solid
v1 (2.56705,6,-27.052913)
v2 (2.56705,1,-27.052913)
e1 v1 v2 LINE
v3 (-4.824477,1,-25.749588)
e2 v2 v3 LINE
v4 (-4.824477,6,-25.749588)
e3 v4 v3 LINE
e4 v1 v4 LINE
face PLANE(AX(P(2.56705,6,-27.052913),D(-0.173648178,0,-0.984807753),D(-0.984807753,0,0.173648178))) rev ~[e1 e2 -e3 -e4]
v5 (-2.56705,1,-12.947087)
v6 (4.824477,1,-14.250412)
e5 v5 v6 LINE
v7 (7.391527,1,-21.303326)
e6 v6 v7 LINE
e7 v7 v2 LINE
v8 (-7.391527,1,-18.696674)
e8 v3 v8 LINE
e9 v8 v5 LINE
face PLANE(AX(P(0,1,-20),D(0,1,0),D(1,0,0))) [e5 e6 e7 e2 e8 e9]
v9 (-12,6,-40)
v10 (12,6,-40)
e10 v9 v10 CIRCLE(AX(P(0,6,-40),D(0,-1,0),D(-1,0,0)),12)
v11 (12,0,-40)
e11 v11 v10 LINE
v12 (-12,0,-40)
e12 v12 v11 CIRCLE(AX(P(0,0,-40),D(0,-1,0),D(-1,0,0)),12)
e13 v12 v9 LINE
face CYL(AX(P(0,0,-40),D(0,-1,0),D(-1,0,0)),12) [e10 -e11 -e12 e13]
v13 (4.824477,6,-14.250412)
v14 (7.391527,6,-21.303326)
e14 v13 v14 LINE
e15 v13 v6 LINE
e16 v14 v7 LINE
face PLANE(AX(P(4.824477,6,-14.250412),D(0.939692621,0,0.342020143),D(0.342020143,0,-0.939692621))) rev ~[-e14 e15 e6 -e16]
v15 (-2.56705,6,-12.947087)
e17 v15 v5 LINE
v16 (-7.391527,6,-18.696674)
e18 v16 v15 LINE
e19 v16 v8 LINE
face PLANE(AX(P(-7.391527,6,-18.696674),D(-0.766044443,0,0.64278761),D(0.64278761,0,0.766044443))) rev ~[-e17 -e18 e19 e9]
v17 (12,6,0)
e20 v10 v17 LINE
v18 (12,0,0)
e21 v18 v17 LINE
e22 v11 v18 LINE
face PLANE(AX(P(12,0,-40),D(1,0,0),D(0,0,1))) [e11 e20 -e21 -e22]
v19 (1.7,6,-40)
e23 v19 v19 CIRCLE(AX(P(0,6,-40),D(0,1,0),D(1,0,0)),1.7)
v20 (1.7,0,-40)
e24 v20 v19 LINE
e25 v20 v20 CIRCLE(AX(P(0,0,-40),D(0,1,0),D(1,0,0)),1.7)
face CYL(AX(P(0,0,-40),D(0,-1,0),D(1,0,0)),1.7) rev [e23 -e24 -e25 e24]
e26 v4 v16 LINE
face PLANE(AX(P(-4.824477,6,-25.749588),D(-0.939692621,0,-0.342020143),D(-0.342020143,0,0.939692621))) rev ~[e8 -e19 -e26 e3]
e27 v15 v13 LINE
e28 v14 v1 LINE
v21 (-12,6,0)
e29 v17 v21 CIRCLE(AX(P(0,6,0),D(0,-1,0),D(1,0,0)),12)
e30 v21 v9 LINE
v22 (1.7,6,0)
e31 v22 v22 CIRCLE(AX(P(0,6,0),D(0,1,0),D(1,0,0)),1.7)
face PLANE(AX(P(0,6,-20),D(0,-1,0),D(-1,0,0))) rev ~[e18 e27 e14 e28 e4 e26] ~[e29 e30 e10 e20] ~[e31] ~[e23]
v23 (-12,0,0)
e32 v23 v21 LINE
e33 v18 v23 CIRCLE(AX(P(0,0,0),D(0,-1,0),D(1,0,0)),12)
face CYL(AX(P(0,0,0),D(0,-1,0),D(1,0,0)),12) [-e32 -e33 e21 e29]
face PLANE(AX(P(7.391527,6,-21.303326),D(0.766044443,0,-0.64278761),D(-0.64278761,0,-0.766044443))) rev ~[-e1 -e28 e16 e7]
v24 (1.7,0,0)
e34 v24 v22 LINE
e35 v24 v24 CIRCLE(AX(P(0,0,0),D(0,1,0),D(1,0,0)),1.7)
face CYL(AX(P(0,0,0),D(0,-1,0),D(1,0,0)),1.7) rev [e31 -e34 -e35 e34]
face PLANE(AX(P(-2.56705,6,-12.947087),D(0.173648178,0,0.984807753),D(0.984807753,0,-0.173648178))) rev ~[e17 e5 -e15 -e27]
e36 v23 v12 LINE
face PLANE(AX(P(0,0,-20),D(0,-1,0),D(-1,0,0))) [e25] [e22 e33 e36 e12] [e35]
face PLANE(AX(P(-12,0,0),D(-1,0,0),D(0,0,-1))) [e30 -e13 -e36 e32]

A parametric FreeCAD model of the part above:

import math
import FreeCAD as App
import Part
import Sketcher
Q = App.Units.Quantity

doc = App.newDocument("Part")
params = doc.addObject("Spreadsheet::Sheet", "Params")
for row, (alias, value) in enumerate([
    ("sketch1_radius", "12 mm"),
    ("sketch1_diameter", "3.4 mm"),
    ("sketch1_height", "40 mm"),
    ("pad1_length", "6 mm"),
    ("pocket1_length", "5 mm"),
], start=1):
    params.set(f"A{row}", alias)
    params.set(f"B{row}", "=" + value)
    params.setAlias(f"B{row}", alias)

body = doc.addObject("PartDesign::Body", "Body")

# Sketch on XZ plane
sketch1 = body.newObject("Sketcher::SketchObject", "Sketch")
sketch1.AttachmentSupport = (doc.getObject("XZ_Plane"), [""])
sketch1.MapMode = "FlatFace"
sketch1.addGeometry([
    Part.LineSegment(App.Vector(-12, -40, 0), App.Vector(-12, 0, 0)),  # 0
    Part.ArcOfCircle(Part.Circle(App.Vector(0, 0, 0), App.Vector(0, 0, 1), 12), math.radians(0), math.radians(180)),  # 1
    Part.LineSegment(App.Vector(12, 0, 0), App.Vector(12, -40, 0)),  # 2
    Part.ArcOfCircle(Part.Circle(App.Vector(0, -40, 0), App.Vector(0, 0, 1), 12), math.radians(180), math.radians(360)),  # 3
    Part.Circle(App.Vector(0, 0, 0), App.Vector(0, 0, 1), 1.7),  # 4
    Part.Circle(App.Vector(0, -40, 0), App.Vector(0, 0, 1), 1.7),  # 5
], False)
sketch1.addConstraint([
    Sketcher.Constraint("Tangent", 0, 2, 1, 2),
    Sketcher.Constraint("Tangent", 1, 1, 2, 1),
    Sketcher.Constraint("Tangent", 2, 2, 3, 2),
    Sketcher.Constraint("Tangent", 3, 1, 0, 1),
    Sketcher.Constraint("Vertical", 0),
    Sketcher.Constraint("Vertical", 2),
    Sketcher.Constraint("Coincident", 1, 3, -1, 1),
    Sketcher.Constraint("Coincident", 4, 3, -1, 1),
    Sketcher.Constraint("Coincident", 5, 3, 3, 3),
    Sketcher.Constraint("Equal", 4, 5),
    Sketcher.Constraint("Radius", 1, Q("12 mm")),
    Sketcher.Constraint("Diameter", 4, Q("3.4 mm")),
    Sketcher.Constraint("DistanceY", 0, 1, 0, 2, Q("40 mm")),
])
sketch1.setExpression("Constraints[10]", "Params.sketch1_radius")
sketch1.setExpression("Constraints[11]", "Params.sketch1_diameter")
sketch1.setExpression("Constraints[12]", "Params.sketch1_height")
pad1 = body.newObject("PartDesign::Pad", "Pad")
pad1.Profile = sketch1
pad1.setExpression("Length", "Params.pad1_length")
pad1.Reversed = True

# Sketch on XZ plane
sketch2 = body.newObject("Sketcher::SketchObject", "Sketch001")
sketch2.AttachmentSupport = (doc.getObject("XZ_Plane"), [""])
sketch2.MapMode = "FlatFace"
sketch2.AttachmentOffset = App.Placement(App.Vector(0, 0, -6), App.Rotation())
sketch2.addGeometry([
    Part.LineSegment(App.Vector(5, -14, 0), App.Vector(7, -21, 0)),  # 0
    Part.LineSegment(App.Vector(7, -21, 0), App.Vector(3, -27, 0)),  # 1
    Part.LineSegment(App.Vector(3, -27, 0), App.Vector(-5, -26, 0)),  # 2
    Part.LineSegment(App.Vector(-5, -26, 0), App.Vector(-7, -19, 0)),  # 3
    Part.LineSegment(App.Vector(-7, -19, 0), App.Vector(-3, -13, 0)),  # 4
    Part.LineSegment(App.Vector(-3, -13, 0), App.Vector(5, -14, 0)),  # 5
], False)
sketch2.addConstraint([
    Sketcher.Constraint("Coincident", 0, 2, 1, 1),
    Sketcher.Constraint("Coincident", 1, 2, 2, 1),
    Sketcher.Constraint("Coincident", 2, 2, 3, 1),
    Sketcher.Constraint("Coincident", 3, 2, 4, 1),
    Sketcher.Constraint("Coincident", 4, 2, 5, 1),
    Sketcher.Constraint("Coincident", 5, 2, 0, 1),
    Sketcher.Constraint("Parallel", 0, 3),
    Sketcher.Constraint("Parallel", 1, 4),
    Sketcher.Constraint("Parallel", 2, 5),
    Sketcher.Constraint("Equal", 0, 1),
    Sketcher.Constraint("Equal", 1, 2),
    Sketcher.Constraint("Equal", 2, 3),
    Sketcher.Constraint("Angle", 0, Q("-70 deg")),
    Sketcher.Constraint("Angle", 1, Q("-130 deg")),
    Sketcher.Constraint("Angle", 2, Q("170 deg")),
    Sketcher.Constraint("DistanceY", 2, 2, 4, 2, Q("12.802501 mm")),
    Sketcher.Constraint("DistanceX", -1, 1, 1, 2, Q("2.56705 mm")),
    Sketcher.Constraint("DistanceY", 0, 2, -1, 1, Q("21.303326 mm")),
])
pocket1 = body.newObject("PartDesign::Pocket", "Pocket")
pocket1.Profile = sketch2
pocket1.setExpression("Length", "Params.pocket1_length")
pocket1.Reversed = True

doc.recompute()
